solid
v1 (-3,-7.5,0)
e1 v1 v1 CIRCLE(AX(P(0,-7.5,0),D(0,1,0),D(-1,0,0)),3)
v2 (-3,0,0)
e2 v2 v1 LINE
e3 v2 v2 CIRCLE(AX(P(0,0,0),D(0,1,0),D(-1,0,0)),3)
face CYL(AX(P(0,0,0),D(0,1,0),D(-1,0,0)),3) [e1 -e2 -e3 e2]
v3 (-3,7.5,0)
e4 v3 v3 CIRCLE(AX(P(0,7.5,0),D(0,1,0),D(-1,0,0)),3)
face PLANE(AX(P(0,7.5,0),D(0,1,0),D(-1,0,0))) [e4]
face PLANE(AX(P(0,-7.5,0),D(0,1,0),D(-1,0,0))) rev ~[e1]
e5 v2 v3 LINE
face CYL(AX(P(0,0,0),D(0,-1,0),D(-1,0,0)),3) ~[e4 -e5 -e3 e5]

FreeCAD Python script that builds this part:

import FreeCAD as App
import Part
import Sketcher

V = App.Vector

doc = App.newDocument("Part")
body = doc.addObject("PartDesign::Body", "Body")

# Sketch on XZ plane
sketch1 = doc.addObject("Sketcher::SketchObject", "Sketch")
body.addObject(sketch1)
sketch1.AttachmentSupport = (doc.XZ_Plane, [""])
sketch1.MapMode = "FlatFace"
sketch1.addGeometry(Part.Circle(V(0, 0, 0), V(0, 0, 1), 3), False)
sketch1.addConstraint(Sketcher.Constraint("Coincident", 0, 3, -1, 1))
sketch1.addConstraint(Sketcher.Constraint("Diameter", 0, 6.0))
pad1 = doc.addObject("PartDesign::Pad", "Pad")
body.addObject(pad1)
pad1.Profile = sketch1
pad1.Length = 15
pad1.Midplane = True

doc.recompute()
